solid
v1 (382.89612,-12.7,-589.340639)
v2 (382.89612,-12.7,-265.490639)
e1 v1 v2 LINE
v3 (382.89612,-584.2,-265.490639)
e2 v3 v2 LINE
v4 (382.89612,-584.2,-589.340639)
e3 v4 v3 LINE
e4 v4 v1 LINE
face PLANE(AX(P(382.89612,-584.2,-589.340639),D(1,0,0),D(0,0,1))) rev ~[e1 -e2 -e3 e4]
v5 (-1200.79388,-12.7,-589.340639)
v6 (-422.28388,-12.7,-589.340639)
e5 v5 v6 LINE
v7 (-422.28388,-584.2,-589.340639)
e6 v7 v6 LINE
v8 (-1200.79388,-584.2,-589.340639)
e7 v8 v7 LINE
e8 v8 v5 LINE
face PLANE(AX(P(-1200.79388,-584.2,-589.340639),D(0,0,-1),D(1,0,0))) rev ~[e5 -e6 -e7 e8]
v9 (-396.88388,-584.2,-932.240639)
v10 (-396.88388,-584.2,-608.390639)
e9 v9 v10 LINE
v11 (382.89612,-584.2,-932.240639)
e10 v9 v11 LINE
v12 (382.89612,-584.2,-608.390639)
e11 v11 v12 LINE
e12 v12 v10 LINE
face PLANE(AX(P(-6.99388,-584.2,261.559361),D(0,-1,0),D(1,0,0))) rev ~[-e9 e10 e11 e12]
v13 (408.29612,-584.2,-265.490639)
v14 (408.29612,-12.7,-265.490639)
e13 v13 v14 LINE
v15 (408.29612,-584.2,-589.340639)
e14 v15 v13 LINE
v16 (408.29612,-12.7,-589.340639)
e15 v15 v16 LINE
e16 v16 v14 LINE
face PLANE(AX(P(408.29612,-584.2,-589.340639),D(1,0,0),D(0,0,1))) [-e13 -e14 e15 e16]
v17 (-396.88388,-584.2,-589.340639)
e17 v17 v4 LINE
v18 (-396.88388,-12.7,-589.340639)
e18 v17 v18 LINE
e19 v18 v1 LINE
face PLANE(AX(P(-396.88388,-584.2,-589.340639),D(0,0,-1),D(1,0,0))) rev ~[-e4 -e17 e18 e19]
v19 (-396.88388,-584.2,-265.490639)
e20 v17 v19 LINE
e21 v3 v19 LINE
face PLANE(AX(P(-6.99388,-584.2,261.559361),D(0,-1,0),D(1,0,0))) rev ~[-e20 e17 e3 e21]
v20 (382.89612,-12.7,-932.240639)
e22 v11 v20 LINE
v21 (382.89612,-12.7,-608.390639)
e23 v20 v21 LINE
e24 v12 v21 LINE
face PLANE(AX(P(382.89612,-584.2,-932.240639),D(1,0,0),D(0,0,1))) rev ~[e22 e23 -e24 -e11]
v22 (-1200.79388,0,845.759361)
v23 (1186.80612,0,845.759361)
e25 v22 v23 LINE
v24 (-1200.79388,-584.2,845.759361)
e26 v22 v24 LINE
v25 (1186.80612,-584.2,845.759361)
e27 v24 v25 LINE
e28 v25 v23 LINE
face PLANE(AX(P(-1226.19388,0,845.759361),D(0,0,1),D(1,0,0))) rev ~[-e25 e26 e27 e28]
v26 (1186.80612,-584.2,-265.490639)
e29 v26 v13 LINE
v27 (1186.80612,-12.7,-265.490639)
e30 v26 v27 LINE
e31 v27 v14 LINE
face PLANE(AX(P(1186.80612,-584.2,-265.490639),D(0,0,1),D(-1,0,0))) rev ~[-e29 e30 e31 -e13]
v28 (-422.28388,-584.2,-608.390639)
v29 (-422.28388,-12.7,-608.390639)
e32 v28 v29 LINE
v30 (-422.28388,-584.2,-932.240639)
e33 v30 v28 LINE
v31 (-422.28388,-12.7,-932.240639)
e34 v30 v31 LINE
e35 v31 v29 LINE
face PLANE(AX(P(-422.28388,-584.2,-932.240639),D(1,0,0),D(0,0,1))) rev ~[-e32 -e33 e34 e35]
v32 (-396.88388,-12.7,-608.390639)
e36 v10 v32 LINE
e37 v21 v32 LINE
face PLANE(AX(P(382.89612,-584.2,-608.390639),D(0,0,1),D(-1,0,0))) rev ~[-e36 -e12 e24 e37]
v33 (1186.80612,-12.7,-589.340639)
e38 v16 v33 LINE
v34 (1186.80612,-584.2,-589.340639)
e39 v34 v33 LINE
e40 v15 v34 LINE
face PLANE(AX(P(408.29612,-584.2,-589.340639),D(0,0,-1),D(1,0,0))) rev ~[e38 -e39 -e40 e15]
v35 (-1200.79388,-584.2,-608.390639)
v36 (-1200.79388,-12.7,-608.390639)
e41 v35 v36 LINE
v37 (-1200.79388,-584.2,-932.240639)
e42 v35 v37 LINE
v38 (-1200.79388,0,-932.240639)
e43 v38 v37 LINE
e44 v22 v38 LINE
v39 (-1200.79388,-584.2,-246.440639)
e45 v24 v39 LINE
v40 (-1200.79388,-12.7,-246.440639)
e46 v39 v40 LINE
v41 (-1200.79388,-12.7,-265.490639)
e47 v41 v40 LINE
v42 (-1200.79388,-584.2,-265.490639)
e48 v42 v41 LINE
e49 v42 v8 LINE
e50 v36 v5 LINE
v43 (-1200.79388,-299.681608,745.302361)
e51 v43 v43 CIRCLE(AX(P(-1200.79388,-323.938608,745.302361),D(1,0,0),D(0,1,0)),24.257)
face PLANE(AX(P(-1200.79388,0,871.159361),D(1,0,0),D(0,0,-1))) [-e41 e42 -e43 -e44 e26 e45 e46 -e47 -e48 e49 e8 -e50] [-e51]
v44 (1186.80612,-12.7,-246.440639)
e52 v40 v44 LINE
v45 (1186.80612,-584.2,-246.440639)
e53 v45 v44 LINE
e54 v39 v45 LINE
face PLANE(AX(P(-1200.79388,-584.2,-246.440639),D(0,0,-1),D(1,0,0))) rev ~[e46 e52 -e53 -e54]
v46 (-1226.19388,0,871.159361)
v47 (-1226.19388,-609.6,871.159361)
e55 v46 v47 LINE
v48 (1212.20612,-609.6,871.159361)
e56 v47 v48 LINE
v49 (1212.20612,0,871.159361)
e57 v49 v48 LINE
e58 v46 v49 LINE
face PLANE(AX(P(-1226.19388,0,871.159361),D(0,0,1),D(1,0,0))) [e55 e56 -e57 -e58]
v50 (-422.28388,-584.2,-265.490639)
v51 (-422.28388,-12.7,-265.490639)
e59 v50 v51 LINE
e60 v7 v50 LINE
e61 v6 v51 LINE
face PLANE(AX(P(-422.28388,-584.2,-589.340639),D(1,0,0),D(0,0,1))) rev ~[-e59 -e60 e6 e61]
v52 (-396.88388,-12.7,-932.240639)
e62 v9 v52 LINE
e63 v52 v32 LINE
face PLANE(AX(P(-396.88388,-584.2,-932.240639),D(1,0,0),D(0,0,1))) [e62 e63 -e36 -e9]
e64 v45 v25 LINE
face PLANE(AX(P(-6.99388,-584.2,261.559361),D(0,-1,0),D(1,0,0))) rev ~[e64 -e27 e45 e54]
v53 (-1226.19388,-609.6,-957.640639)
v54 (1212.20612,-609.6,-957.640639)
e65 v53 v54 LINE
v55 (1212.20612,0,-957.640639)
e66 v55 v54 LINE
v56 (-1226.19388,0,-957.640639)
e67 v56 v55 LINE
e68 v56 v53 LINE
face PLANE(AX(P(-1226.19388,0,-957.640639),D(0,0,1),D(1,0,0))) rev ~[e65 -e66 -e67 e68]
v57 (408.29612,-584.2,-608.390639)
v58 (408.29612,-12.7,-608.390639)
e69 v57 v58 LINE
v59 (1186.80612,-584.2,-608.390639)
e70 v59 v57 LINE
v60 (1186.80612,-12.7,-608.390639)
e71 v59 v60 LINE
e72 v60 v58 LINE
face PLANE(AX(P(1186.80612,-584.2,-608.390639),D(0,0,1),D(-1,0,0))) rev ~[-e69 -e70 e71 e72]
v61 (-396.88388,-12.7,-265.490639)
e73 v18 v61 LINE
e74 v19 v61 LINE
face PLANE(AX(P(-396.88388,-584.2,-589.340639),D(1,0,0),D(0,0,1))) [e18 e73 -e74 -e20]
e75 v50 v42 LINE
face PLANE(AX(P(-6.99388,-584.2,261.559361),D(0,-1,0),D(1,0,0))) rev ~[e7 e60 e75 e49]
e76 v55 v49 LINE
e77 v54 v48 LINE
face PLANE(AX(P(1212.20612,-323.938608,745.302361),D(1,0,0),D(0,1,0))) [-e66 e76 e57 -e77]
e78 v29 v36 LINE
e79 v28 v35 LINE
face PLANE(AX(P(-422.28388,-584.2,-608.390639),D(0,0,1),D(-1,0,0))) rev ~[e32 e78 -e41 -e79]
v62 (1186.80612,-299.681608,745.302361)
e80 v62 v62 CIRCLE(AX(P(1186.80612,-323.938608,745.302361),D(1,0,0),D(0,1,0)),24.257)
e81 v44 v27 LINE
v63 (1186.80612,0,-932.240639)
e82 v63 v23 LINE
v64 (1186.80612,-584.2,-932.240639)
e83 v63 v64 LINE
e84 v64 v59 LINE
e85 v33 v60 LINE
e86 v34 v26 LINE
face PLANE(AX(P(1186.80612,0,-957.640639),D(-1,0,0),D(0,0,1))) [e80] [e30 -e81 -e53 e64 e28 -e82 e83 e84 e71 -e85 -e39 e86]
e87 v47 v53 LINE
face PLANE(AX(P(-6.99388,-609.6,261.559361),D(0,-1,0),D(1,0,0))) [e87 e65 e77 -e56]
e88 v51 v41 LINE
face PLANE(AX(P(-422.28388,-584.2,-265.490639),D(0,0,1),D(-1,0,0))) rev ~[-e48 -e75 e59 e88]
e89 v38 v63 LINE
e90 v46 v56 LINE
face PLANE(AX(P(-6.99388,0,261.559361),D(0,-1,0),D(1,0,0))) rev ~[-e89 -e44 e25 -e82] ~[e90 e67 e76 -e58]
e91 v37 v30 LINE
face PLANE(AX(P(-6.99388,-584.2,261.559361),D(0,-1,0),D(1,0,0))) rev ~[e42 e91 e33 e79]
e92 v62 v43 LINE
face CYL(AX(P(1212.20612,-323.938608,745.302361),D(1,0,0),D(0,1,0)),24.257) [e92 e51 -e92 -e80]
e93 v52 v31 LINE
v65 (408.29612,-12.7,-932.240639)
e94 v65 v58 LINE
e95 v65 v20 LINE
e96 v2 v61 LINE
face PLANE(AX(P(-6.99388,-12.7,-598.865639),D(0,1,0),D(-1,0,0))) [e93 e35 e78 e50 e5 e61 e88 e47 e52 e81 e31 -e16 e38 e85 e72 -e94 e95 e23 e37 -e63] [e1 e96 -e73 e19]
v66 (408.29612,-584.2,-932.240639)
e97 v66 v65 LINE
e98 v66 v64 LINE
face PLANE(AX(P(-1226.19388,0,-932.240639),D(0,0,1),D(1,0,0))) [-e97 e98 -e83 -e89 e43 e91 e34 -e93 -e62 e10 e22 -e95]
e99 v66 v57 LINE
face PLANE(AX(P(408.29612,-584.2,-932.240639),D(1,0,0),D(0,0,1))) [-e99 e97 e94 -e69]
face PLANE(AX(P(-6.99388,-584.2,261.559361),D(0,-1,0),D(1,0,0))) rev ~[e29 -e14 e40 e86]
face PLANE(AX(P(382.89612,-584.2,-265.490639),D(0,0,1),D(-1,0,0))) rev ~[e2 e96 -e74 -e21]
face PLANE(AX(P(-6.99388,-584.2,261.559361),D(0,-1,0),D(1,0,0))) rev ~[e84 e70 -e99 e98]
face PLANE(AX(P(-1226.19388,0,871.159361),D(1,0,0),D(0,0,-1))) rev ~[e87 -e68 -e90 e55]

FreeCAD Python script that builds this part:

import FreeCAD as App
import Part
import Sketcher

V = App.Vector
Q = App.Units.Quantity


def faces_at(feature, points):
    """Names of the faces that lie closest to the given points."""
    faces = feature.Shape.Faces
    near = lambda p: min(range(len(faces)), key=lambda i: faces[i].distToShape(Part.Vertex(*p))[0])
    return sorted({f"Face{near(p) + 1}" for p in points})


def add_polygon(sketch, points):
    """Adds a closed chain of lines whose ends are joined by coincident constraints."""
    first, n = sketch.GeometryCount, len(points)
    for a, b in zip(points, points[1:] + points[:1]):
        sketch.addGeometry(Part.LineSegment(App.Vector(*a, 0), App.Vector(*b, 0)), False)
    for i in range(n):
        sketch.addConstraint(Sketcher.Constraint("Coincident", first + i, 2, first + (i + 1) % n, 1))

doc = App.newDocument("Part")
body = doc.addObject("PartDesign::Body", "Body")

# Sketch on XZ plane
sketch1 = body.newObject("Sketcher::SketchObject", "Sketch")
sketch1.AttachmentSupport = (doc.getObject("XZ_Plane"), [""])
sketch1.MapMode = "FlatFace"
add_polygon(sketch1, [(-1226, 871), (-1226, -958), (1212, -958), (1212, 871)])  # lines 0-3
sketch1.addConstraint([
    Sketcher.Constraint("Vertical", 0),
    Sketcher.Constraint("Horizontal", 1),
    Sketcher.Constraint("Vertical", 2),
    Sketcher.Constraint("Horizontal", 3),
    Sketcher.Constraint("DistanceX", 1, 1, 1, 2, Q("96 in")),
    Sketcher.Constraint("DistanceY", 0, 2, 0, 1, Q("72 in")),
    Sketcher.Constraint("DistanceX", 0, 2, -1, 1, 1226.19388),
    Sketcher.Constraint("DistanceY", 0, 2, -1, 1, 957.640639),
])
pad1 = body.newObject("PartDesign::Pad", "Pad")
pad1.Profile = sketch1
pad1.Length = Q("24 in")
doc.recompute()

thickness = body.newObject("PartDesign::Thickness", "Thickness")
thickness.Base = (pad1, faces_at(pad1, [(-6.994, 0, -43.241)]))
thickness.Value = Q("1 in")
thickness.Reversed = True
thickness.Join = "Arc"

# Sketch on XZ plane
sketch2 = body.newObject("Sketcher::SketchObject", "Sketch001")
sketch2.AttachmentSupport = (doc.getObject("XZ_Plane"), [""])
sketch2.MapMode = "FlatFace"
sketch2.AttachmentOffset = App.Placement(V(0, 0, 23 * 25.4), App.Rotation())
add_polygon(sketch2, [(1187, -589), (1187, -608), (408, -608), (408, -932), (383, -932), (383, -608), (-397, -608), (-397, -932), (-422, -932), (-422, -608), (-1201, -608), (-1201, -589), (-422, -589), (-422, -265), (-1201, -265), (-1201, -246), (1187, -246), (1187, -265), (408, -265), (408, -589)])  # lines 0-19
add_polygon(sketch2, [(-397, -589), (383, -589), (383, -265), (-397, -265)])  # lines 20-23
sketch2.addConstraint([
    Sketcher.Constraint("Vertical", 0),
    Sketcher.Constraint("Horizontal", 1),
    Sketcher.Constraint("Vertical", 2),
    Sketcher.Constraint("Horizontal", 3),
    Sketcher.Constraint("Vertical", 4),
    Sketcher.Constraint("Horizontal", 5),
    Sketcher.Constraint("Vertical", 6),
    Sketcher.Constraint("Horizontal", 7),
    Sketcher.Constraint("Vertical", 8),
    Sketcher.Constraint("Horizontal", 9),
    Sketcher.Constraint("Vertical", 10),
    Sketcher.Constraint("Horizontal", 11),
    Sketcher.Constraint("Vertical", 12),
    Sketcher.Constraint("Horizontal", 13),
    Sketcher.Constraint("Vertical", 14),
    Sketcher.Constraint("Horizontal", 15),
    Sketcher.Constraint("Vertical", 16),
    Sketcher.Constraint("Horizontal", 17),
    Sketcher.Constraint("Vertical", 18),
    Sketcher.Constraint("Horizontal", 19),
    Sketcher.Constraint("Horizontal", 20),
    Sketcher.Constraint("Vertical", 21),
    Sketcher.Constraint("Horizontal", 22),
    Sketcher.Constraint("Vertical", 23),
    Sketcher.Constraint("Horizontal", 1, 2, 4, 2),
    Sketcher.Constraint("Horizontal", 3, 2, 6, 2),
    Sketcher.Constraint("Horizontal", 5, 2, 8, 2),
    Sketcher.Constraint("Horizontal", 13, 2, 16, 2),
    Sketcher.Constraint("Horizontal", 11, 2, 18, 2),
    Sketcher.Constraint("Horizontal", 19, 2, 20, 2),
    Sketcher.Constraint("Horizontal", 17, 2, 21, 2),
    Sketcher.Constraint("Vertical", 8, 2, 11, 2),
    Sketcher.Constraint("Vertical", 10, 2, 13, 2),
    Sketcher.Constraint("Vertical", 0, 2, 15, 2),
    Sketcher.Constraint("Vertical", 2, 2, 17, 2),
    Sketcher.Constraint("Vertical", 4, 2, 20, 2),
    Sketcher.Constraint("Vertical", 6, 2, 22, 2),
    Sketcher.Constraint("Equal", 3, 7),
    Sketcher.Constraint("Equal", 1, 9),
    Sketcher.Constraint("Equal", 8, 12),
    Sketcher.Constraint("Equal", 10, 14),
    Sketcher.Constraint("DistanceX", 3, 2, 3, 1, Q("1 in")),
    Sketcher.Constraint("DistanceX", 15, 1, 15, 2, Q("94 in")),
    Sketcher.Constraint("DistanceX", 5, 2, 5, 1, Q("30.7 in")),
    Sketcher.Constraint("DistanceY", 2, 2, 15, 2, Q("27 in")),
    Sketcher.Constraint("DistanceY", 0, 2, 0, 1, Q("0.75 in")),
    Sketcher.Constraint("DistanceX", -1, 1, 0, 2, 1186.80612),
    Sketcher.Constraint("DistanceY", 0, 2, -1, 1, 608.390639),
])
pad2 = body.newObject("PartDesign::Pad", "Pad001")
pad2.Profile = sketch2
pad2.Length = Q("22.5 in")
pad2.Reversed = True

# Sketch on YZ plane
sketch3 = body.newObject("Sketcher::SketchObject", "Sketch002")
sketch3.AttachmentSupport = (doc.getObject("YZ_Plane"), [""])
sketch3.MapMode = "FlatFace"
sketch3.AttachmentOffset = App.Placement(V(0, 0, 1212.20612), App.Rotation())
sketch3.addGeometry(Part.Circle(V(-324, 745, 0), V(0, 0, 1), 24), False)
sketch3.addConstraint([
    Sketcher.Constraint("Diameter", 0, Q("1.91 in")),
    Sketcher.Constraint("DistanceX", 0, 3, -1, 1, 323.938608),
    Sketcher.Constraint("DistanceY", -1, 1, 0, 3, 745.302361),
])
pad3 = body.newObject("PartDesign::Pad", "Pad002")
pad3.Profile = sketch3
pad3.Length = Q("96 in")
pad3.Reversed = True

doc.recompute()
